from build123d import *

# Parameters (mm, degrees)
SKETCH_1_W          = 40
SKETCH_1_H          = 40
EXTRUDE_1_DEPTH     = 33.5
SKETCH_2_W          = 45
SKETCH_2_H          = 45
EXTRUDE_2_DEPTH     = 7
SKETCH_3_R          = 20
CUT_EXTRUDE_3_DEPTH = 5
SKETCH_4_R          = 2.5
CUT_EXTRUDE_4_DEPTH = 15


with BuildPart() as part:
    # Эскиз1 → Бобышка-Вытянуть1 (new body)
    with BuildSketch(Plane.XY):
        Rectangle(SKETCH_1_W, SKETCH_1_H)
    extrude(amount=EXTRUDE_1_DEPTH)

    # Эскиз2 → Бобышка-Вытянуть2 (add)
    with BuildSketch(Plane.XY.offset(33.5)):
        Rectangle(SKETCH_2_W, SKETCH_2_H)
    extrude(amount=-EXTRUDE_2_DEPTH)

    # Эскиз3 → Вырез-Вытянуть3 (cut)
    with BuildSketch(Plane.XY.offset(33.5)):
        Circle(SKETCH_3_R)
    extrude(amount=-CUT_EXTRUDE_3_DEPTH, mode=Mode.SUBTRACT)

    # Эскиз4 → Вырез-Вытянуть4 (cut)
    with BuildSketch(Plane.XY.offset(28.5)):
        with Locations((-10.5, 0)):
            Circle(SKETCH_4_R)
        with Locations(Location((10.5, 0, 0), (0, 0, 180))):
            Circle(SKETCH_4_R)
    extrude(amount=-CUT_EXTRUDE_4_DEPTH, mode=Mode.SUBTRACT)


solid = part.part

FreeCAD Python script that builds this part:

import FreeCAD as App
import Part
import Sketcher

doc = App.newDocument("Part")
body = doc.addObject("PartDesign::Body", "Body")

sketch1 = doc.addObject("Sketcher::SketchObject", "Sketch")
body.addObject(sketch1)
sketch1.AttachmentSupport = (doc.XY_Plane, [""])
sketch1.MapMode = "FlatFace"
sketch1.addGeometry([
    Part.LineSegment(App.Vector(-20, 20, 0), App.Vector(-20, -20, 0)),
    Part.LineSegment(App.Vector(-20, -20, 0), App.Vector(20, -20, 0)),
    Part.LineSegment(App.Vector(20, -20, 0), App.Vector(20, 20, 0)),
    Part.LineSegment(App.Vector(20, 20, 0), App.Vector(-20, 20, 0)),
], False)
sketch1.addConstraint([
    Sketcher.Constraint("Coincident", 0, 2, 1, 1),
    Sketcher.Constraint("Coincident", 1, 2, 2, 1),
    Sketcher.Constraint("Coincident", 2, 2, 3, 1),
    Sketcher.Constraint("Coincident", 3, 2, 0, 1),
    Sketcher.Constraint("Vertical", 0),
    Sketcher.Constraint("Horizontal", 1),
    Sketcher.Constraint("Vertical", 2),
    Sketcher.Constraint("Horizontal", 3),
    Sketcher.Constraint("Symmetric", 0, 2, 2, 2, -1, 1),
    Sketcher.Constraint("Equal", 3, 0),
    Sketcher.Constraint("DistanceX", 1, 1, 1, 2, 40.0),
])
pad1 = doc.addObject("PartDesign::Pad", "Pad")
body.addObject(pad1)
pad1.Profile = sketch1
pad1.Length = 33.5

sketch2 = doc.addObject("Sketcher::SketchObject", "Sketch001")
body.addObject(sketch2)
sketch2.AttachmentSupport = (doc.XY_Plane, [""])
sketch2.MapMode = "FlatFace"
sketch2.AttachmentOffset = App.Placement(App.Vector(0, 0, 33.5), App.Rotation())
sketch2.addGeometry([
    Part.LineSegment(App.Vector(-22, 22, 0), App.Vector(-22, -22, 0)),
    Part.LineSegment(App.Vector(-22, -22, 0), App.Vector(22, -22, 0)),
    Part.LineSegment(App.Vector(22, -22, 0), App.Vector(22, 22, 0)),
    Part.LineSegment(App.Vector(22, 22, 0), App.Vector(-22, 22, 0)),
], False)
sketch2.addConstraint([
    Sketcher.Constraint("Coincident", 0, 2, 1, 1),
    Sketcher.Constraint("Coincident", 1, 2, 2, 1),
    Sketcher.Constraint("Coincident", 2, 2, 3, 1),
    Sketcher.Constraint("Coincident", 3, 2, 0, 1),
    Sketcher.Constraint("Vertical", 0),
    Sketcher.Constraint("Horizontal", 1),
    Sketcher.Constraint("Vertical", 2),
    Sketcher.Constraint("Horizontal", 3),
    Sketcher.Constraint("Symmetric", 0, 2, 2, 2, -1, 1),
    Sketcher.Constraint("Equal", 3, 0),
    Sketcher.Constraint("DistanceX", 1, 1, 1, 2, 45.0),
])
pad2 = doc.addObject("PartDesign::Pad", "Pad001")
body.addObject(pad2)
pad2.Profile = sketch2
pad2.Length = 7
pad2.Reversed = True

sketch3 = doc.addObject("Sketcher::SketchObject", "Sketch002")
body.addObject(sketch3)
sketch3.AttachmentSupport = (doc.XY_Plane, [""])
sketch3.MapMode = "FlatFace"
sketch3.AttachmentOffset = App.Placement(App.Vector(0, 0, 33.5), App.Rotation())
sketch3.addGeometry(Part.Circle(App.Vector(0, 0, 0), App.Vector(0, 0, 1), 20), False)
sketch3.addConstraint([
    Sketcher.Constraint("Coincident", 0, 3, -1, 1),
    Sketcher.Constraint("Diameter", 0, 40.0),
])
pocket1 = doc.addObject("PartDesign::Pocket", "Pocket")
body.addObject(pocket1)
pocket1.Profile = sketch3
pocket1.Length = 5

sketch4 = doc.addObject("Sketcher::SketchObject", "Sketch003")
body.addObject(sketch4)
sketch4.AttachmentSupport = (doc.XY_Plane, [""])
sketch4.MapMode = "FlatFace"
sketch4.AttachmentOffset = App.Placement(App.Vector(0, 0, 28.5), App.Rotation())
sketch4.addGeometry([
    Part.Circle(App.Vector(-10.5, 0, 0), App.Vector(0, 0, 1), 2.5),
    Part.Circle(App.Vector(10.5, 0, 0), App.Vector(0, 0, 1), 2.5),
], False)
sketch4.addConstraint([
    Sketcher.Constraint("Equal", 0, 1),
    Sketcher.Constraint("Symmetric", 0, 3, 1, 3, -1, 1),
    Sketcher.Constraint("PointOnObject", 0, 3, -1),
    Sketcher.Constraint("Diameter", 0, 5.0),
    Sketcher.Constraint("DistanceX", 0, 3, 1, 3, 21.0),
])
pocket2 = doc.addObject("PartDesign::Pocket", "Pocket001")
body.addObject(pocket2)
pocket2.Profile = sketch4
pocket2.Length = 15

doc.recompute()
